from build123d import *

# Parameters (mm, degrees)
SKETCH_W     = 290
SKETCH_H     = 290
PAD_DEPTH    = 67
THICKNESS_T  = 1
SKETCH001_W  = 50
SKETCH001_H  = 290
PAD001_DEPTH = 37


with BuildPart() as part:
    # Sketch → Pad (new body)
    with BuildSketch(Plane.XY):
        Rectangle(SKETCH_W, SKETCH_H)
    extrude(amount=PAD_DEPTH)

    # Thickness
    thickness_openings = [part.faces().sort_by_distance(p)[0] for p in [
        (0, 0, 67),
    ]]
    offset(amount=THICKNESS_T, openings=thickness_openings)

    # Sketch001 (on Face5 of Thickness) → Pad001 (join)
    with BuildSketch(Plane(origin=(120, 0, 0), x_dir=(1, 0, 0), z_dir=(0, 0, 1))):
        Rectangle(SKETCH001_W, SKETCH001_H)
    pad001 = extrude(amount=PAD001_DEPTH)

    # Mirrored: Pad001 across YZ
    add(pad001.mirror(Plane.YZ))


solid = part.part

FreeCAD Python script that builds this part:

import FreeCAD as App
import Part
import Sketcher
Q = App.Units.Quantity


def faces_at(feature, points):
    """Names of the faces that lie closest to the given points."""
    faces = feature.Shape.Faces
    near = lambda p: min(range(len(faces)), key=lambda i: faces[i].distToShape(Part.Vertex(*p))[0])
    return sorted({f"Face{near(p) + 1}" for p in points})

doc = App.newDocument("Part")
body = doc.addObject("PartDesign::Body", "Body")

sketch1 = body.newObject("Sketcher::SketchObject", "Sketch")
sketch1.AttachmentSupport = (doc.getObject("XY_Plane"), [""])
sketch1.MapMode = "FlatFace"
sketch1.addGeometry([
    Part.LineSegment(App.Vector(-145, 145, 0), App.Vector(-145, -145, 0)),
    Part.LineSegment(App.Vector(-145, -145, 0), App.Vector(145, -145, 0)),
    Part.LineSegment(App.Vector(145, -145, 0), App.Vector(145, 145, 0)),
    Part.LineSegment(App.Vector(145, 145, 0), App.Vector(-145, 145, 0)),
], False)
sketch1.addConstraint([
    Sketcher.Constraint("Coincident", 0, 2, 1, 1),
    Sketcher.Constraint("Coincident", 1, 2, 2, 1),
    Sketcher.Constraint("Coincident", 2, 2, 3, 1),
    Sketcher.Constraint("Coincident", 3, 2, 0, 1),
    Sketcher.Constraint("Vertical", 0),
    Sketcher.Constraint("Horizontal", 1),
    Sketcher.Constraint("Vertical", 2),
    Sketcher.Constraint("Horizontal", 3),
    Sketcher.Constraint("Symmetric", 0, 2, 2, 2, -1, 1),
    Sketcher.Constraint("Equal", 3, 0),
    Sketcher.Constraint("DistanceX", 1, 1, 1, 2, Q("290 mm")),
])
pad1 = body.newObject("PartDesign::Pad", "Pad")
pad1.Profile = sketch1
pad1.Length = 67
doc.recompute()

thickness = body.newObject("PartDesign::Thickness", "Thickness")
thickness.Base = (pad1, faces_at(pad1, [(0, 0, 67)]))
thickness.Value = 1
thickness.Reversed = False
thickness.Join = "Arc"

sketch2 = body.newObject("Sketcher::SketchObject", "Sketch001")
sketch2.AttachmentSupport = (doc.getObject("XY_Plane"), [""])
sketch2.MapMode = "FlatFace"
sketch2.addGeometry([
    Part.LineSegment(App.Vector(95, 145, 0), App.Vector(95, -145, 0)),
    Part.LineSegment(App.Vector(95, -145, 0), App.Vector(145, -145, 0)),
    Part.LineSegment(App.Vector(145, -145, 0), App.Vector(145, 145, 0)),
    Part.LineSegment(App.Vector(145, 145, 0), App.Vector(95, 145, 0)),
], False)
sketch2.addConstraint([
    Sketcher.Constraint("Coincident", 0, 2, 1, 1),
    Sketcher.Constraint("Coincident", 1, 2, 2, 1),
    Sketcher.Constraint("Coincident", 2, 2, 3, 1),
    Sketcher.Constraint("Coincident", 3, 2, 0, 1),
    Sketcher.Constraint("Vertical", 0),
    Sketcher.Constraint("Horizontal", 1),
    Sketcher.Constraint("Vertical", 2),
    Sketcher.Constraint("Horizontal", 3),
    Sketcher.Constraint("DistanceX", 1, 1, 1, 2, Q("50 mm")),
    Sketcher.Constraint("DistanceY", 0, 2, 0, 1, Q("290 mm")),
    Sketcher.Constraint("DistanceX", -1, 1, 0, 2, Q("95 mm")),
    Sketcher.Constraint("DistanceY", 0, 2, -1, 1, Q("145 mm")),
])
pad2 = body.newObject("PartDesign::Pad", "Pad001")
pad2.Profile = sketch2
pad2.Length = 37
doc.recompute()

mirrored = body.newObject("PartDesign::Mirrored", "Mirrored")
mirrored.Originals = [pad2]
mirrored.MirrorPlane = (doc.getObject("YZ_Plane"), [""])
body.Tip = mirrored

doc.recompute()
